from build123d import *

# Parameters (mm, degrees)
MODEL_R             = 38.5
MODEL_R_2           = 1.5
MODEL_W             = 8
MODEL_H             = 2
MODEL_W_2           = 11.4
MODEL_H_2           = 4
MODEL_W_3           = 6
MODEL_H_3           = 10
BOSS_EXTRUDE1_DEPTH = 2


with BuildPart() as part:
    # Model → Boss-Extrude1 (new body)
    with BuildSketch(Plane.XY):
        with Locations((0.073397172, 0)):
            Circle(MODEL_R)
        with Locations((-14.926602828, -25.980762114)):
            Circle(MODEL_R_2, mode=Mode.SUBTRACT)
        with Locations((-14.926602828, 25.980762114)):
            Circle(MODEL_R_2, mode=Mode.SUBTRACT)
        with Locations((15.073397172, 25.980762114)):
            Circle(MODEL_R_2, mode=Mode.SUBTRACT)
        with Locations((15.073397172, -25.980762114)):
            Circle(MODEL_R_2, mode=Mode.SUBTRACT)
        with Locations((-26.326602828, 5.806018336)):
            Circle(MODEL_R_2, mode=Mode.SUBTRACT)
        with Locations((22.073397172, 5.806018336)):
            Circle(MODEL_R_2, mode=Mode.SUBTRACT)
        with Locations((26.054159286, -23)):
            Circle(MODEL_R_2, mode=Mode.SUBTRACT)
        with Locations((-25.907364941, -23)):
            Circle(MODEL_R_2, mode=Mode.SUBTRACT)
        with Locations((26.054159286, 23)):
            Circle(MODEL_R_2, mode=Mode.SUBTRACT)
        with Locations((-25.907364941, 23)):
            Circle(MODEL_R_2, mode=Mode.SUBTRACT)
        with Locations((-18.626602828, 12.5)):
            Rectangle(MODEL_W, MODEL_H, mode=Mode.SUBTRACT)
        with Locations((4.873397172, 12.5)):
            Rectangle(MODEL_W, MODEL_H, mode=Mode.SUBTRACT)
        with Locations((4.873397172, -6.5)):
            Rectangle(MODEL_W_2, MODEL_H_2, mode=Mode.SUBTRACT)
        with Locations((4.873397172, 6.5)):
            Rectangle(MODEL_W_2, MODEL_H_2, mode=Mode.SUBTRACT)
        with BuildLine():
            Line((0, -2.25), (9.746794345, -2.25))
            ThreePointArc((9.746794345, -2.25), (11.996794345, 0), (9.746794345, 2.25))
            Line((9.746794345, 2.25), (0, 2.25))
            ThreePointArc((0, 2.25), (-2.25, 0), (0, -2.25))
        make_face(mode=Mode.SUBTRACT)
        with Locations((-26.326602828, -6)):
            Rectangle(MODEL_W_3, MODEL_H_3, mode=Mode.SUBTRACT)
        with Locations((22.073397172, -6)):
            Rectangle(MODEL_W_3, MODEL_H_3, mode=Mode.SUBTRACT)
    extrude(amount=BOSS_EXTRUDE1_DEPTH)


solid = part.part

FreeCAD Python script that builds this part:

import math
import FreeCAD as App
import Part
import Sketcher

doc = App.newDocument("Part")
params = doc.addObject("Spreadsheet::Sheet", "Params")
for row, (alias, value) in enumerate([
    ("sketch1_diameter", "77 mm"),
    ("sketch1_diameter2", "3 mm"),
    ("sketch1_width", "6 mm"),
    ("sketch1_width2", "8 mm"),
    ("sketch1_height", "10 mm"),
    ("pad1_length", "2 mm"),
], start=1):
    params.set(f"A{row}", alias)
    params.set(f"B{row}", "=" + value)
    params.setAlias(f"B{row}", alias)

body = doc.addObject("PartDesign::Body", "Body")

# Sketch on XY plane
sketch1 = body.newObject("Sketcher::SketchObject", "Sketch")
sketch1.AttachmentSupport = (doc.getObject("XY_Plane"), [""])
sketch1.MapMode = "FlatFace"
sketch1.addGeometry([
    Part.Circle(App.Vector(0.1, 0, 0), App.Vector(0, 0, 1), 38.5),  # 0
    Part.Circle(App.Vector(-25.9, -23, 0), App.Vector(0, 0, 1), 1.5),  # 1
    Part.Circle(App.Vector(-14.9, -26, 0), App.Vector(0, 0, 1), 1.5),  # 2
    Part.LineSegment(App.Vector(-23.3, -11, 0), App.Vector(-29.3, -11, 0)),  # 3
    Part.LineSegment(App.Vector(-29.3, -11, 0), App.Vector(-29.3, -1, 0)),  # 4
    Part.LineSegment(App.Vector(-29.3, -1, 0), App.Vector(-23.3, -1, 0)),  # 5
    Part.LineSegment(App.Vector(-23.3, -1, 0), App.Vector(-23.3, -11, 0)),  # 6
    Part.Circle(App.Vector(15.1, -26, 0), App.Vector(0, 0, 1), 1.5),  # 7
    Part.Circle(App.Vector(26.1, -23, 0), App.Vector(0, 0, 1), 1.5),  # 8
    Part.LineSegment(App.Vector(10.6, -8.5, 0), App.Vector(-0.8, -8.5, 0)),  # 9
    Part.LineSegment(App.Vector(-0.8, -8.5, 0), App.Vector(-0.8, -4.5, 0)),  # 10
    Part.LineSegment(App.Vector(-0.8, -4.5, 0), App.Vector(10.6, -4.5, 0)),  # 11
    Part.LineSegment(App.Vector(10.6, -4.5, 0), App.Vector(10.6, -8.5, 0)),  # 12
    Part.LineSegment(App.Vector(25.1, -11, 0), App.Vector(19.1, -11, 0)),  # 13
    Part.LineSegment(App.Vector(19.1, -11, 0), App.Vector(19.1, -1, 0)),  # 14
    Part.LineSegment(App.Vector(19.1, -1, 0), App.Vector(25.1, -1, 0)),  # 15
    Part.LineSegment(App.Vector(25.1, -1, 0), App.Vector(25.1, -11, 0)),  # 16
    Part.Circle(App.Vector(-26.3, 5.8, 0), App.Vector(0, 0, 1), 1.5),  # 17
    Part.LineSegment(App.Vector(-14.6, 11.5, 0), App.Vector(-22.6, 11.5, 0)),  # 18
    Part.LineSegment(App.Vector(-22.6, 11.5, 0), App.Vector(-22.6, 13.5, 0)),  # 19
    Part.LineSegment(App.Vector(-22.6, 13.5, 0), App.Vector(-14.6, 13.5, 0)),  # 20
    Part.LineSegment(App.Vector(-14.6, 13.5, 0), App.Vector(-14.6, 11.5, 0)),  # 21
    Part.Circle(App.Vector(-25.9, 23, 0), App.Vector(0, 0, 1), 1.5),  # 22
    Part.Circle(App.Vector(-14.9, 26, 0), App.Vector(0, 0, 1), 1.5),  # 23
    Part.LineSegment(App.Vector(9.7, -2.2, 0), App.Vector(0, -2.2, 0)),  # 24
    Part.ArcOfCircle(Part.Circle(App.Vector(0, 0, 0), App.Vector(0, 0, 1), 2.2), math.radians(90), math.radians(270)),  # 25
    Part.LineSegment(App.Vector(0, 2.2, 0), App.Vector(9.7, 2.2, 0)),  # 26
    Part.ArcOfCircle(Part.Circle(App.Vector(9.7, 0, 0), App.Vector(0, 0, 1), 2.2), math.radians(-90), math.radians(90)),  # 27
    Part.LineSegment(App.Vector(10.6, 4.5, 0), App.Vector(-0.8, 4.5, 0)),  # 28
    Part.LineSegment(App.Vector(-0.8, 4.5, 0), App.Vector(-0.8, 8.5, 0)),  # 29
    Part.LineSegment(App.Vector(-0.8, 8.5, 0), App.Vector(10.6, 8.5, 0)),  # 30
    Part.LineSegment(App.Vector(10.6, 8.5, 0), App.Vector(10.6, 4.5, 0)),  # 31
    Part.LineSegment(App.Vector(8.9, 11.5, 0), App.Vector(0.9, 11.5, 0)),  # 32
    Part.LineSegment(App.Vector(0.9, 11.5, 0), App.Vector(0.9, 13.5, 0)),  # 33
    Part.LineSegment(App.Vector(0.9, 13.5, 0), App.Vector(8.9, 13.5, 0)),  # 34
    Part.LineSegment(App.Vector(8.9, 13.5, 0), App.Vector(8.9, 11.5, 0)),  # 35
    Part.Circle(App.Vector(22.1, 5.8, 0), App.Vector(0, 0, 1), 1.5),  # 36
    Part.Circle(App.Vector(15.1, 26, 0), App.Vector(0, 0, 1), 1.5),  # 37
    Part.Circle(App.Vector(26.1, 23, 0), App.Vector(0, 0, 1), 1.5),  # 38
], False)
sketch1.addConstraint([
    Sketcher.Constraint("Coincident", 3, 2, 4, 1),
    Sketcher.Constraint("Coincident", 4, 2, 5, 1),
    Sketcher.Constraint("Coincident", 5, 2, 6, 1),
    Sketcher.Constraint("Coincident", 6, 2, 3, 1),
    Sketcher.Constraint("Coincident", 9, 2, 10, 1),
    Sketcher.Constraint("Coincident", 10, 2, 11, 1),
    Sketcher.Constraint("Coincident", 11, 2, 12, 1),
    Sketcher.Constraint("Coincident", 12, 2, 9, 1),
    Sketcher.Constraint("Coincident", 13, 2, 14, 1),
    Sketcher.Constraint("Coincident", 14, 2, 15, 1),
    Sketcher.Constraint("Coincident", 15, 2, 16, 1),
    Sketcher.Constraint("Coincident", 16, 2, 13, 1),
    Sketcher.Constraint("Coincident", 18, 2, 19, 1),
    Sketcher.Constraint("Coincident", 19, 2, 20, 1),
    Sketcher.Constraint("Coincident", 20, 2, 21, 1),
    Sketcher.Constraint("Coincident", 21, 2, 18, 1),
    Sketcher.Constraint("Tangent", 24, 2, 25, 2),
    Sketcher.Constraint("Tangent", 25, 1, 26, 1),
    Sketcher.Constraint("Tangent", 26, 2, 27, 2),
    Sketcher.Constraint("Tangent", 27, 1, 24, 1),
    Sketcher.Constraint("Coincident", 28, 2, 29, 1),
    Sketcher.Constraint("Coincident", 29, 2, 30, 1),
    Sketcher.Constraint("Coincident", 30, 2, 31, 1),
    Sketcher.Constraint("Coincident", 31, 2, 28, 1),
    Sketcher.Constraint("Coincident", 32, 2, 33, 1),
    Sketcher.Constraint("Coincident", 33, 2, 34, 1),
    Sketcher.Constraint("Coincident", 34, 2, 35, 1),
    Sketcher.Constraint("Coincident", 35, 2, 32, 1),
    Sketcher.Constraint("Horizontal", 3),
    Sketcher.Constraint("Vertical", 4),
    Sketcher.Constraint("Horizontal", 5),
    Sketcher.Constraint("Vertical", 6),
    Sketcher.Constraint("Horizontal", 9),
    Sketcher.Constraint("Vertical", 10),
    Sketcher.Constraint("Horizontal", 11),
    Sketcher.Constraint("Vertical", 12),
    Sketcher.Constraint("Horizontal", 13),
    Sketcher.Constraint("Vertical", 14),
    Sketcher.Constraint("Horizontal", 15),
    Sketcher.Constraint("Vertical", 16),
    Sketcher.Constraint("Horizontal", 18),
    Sketcher.Constraint("Vertical", 19),
    Sketcher.Constraint("Horizontal", 20),
    Sketcher.Constraint("Vertical", 21),
    Sketcher.Constraint("Horizontal", 24),
    Sketcher.Constraint("Horizontal", 26),
    Sketcher.Constraint("Horizontal", 28),
    Sketcher.Constraint("Vertical", 29),
    Sketcher.Constraint("Horizontal", 30),
    Sketcher.Constraint("Vertical", 31),
    Sketcher.Constraint("Horizontal", 32),
    Sketcher.Constraint("Vertical", 33),
    Sketcher.Constraint("Horizontal", 34),
    Sketcher.Constraint("Vertical", 35),
    Sketcher.Constraint("Coincident", 25, 3, -1, 1),
    Sketcher.Constraint("Equal", 1, 2),
    Sketcher.Constraint("Equal", 2, 7),
    Sketcher.Constraint("Equal", 7, 8),
    Sketcher.Constraint("Equal", 8, 17),
    Sketcher.Constraint("Equal", 17, 22),
    Sketcher.Constraint("Equal", 22, 23),
    Sketcher.Constraint("Equal", 23, 36),
    Sketcher.Constraint("Equal", 36, 37),
    Sketcher.Constraint("Equal", 37, 38),
    Sketcher.Constraint("Symmetric", 1, 3, 22, 3, -1),
    Sketcher.Constraint("Symmetric", 2, 3, 23, 3, -1),
    Sketcher.Constraint("Symmetric", 7, 3, 37, 3, -1),
    Sketcher.Constraint("Symmetric", 8, 3, 38, 3, -1),
    Sketcher.Constraint("Symmetric", 10, 2, 28, 2, -1),
    Sketcher.Constraint("Symmetric", 12, 2, 30, 2, -1),
    Sketcher.Constraint("PointOnObject", 0, 3, -1),
    Sketcher.Constraint("Horizontal", 2, 3, 7, 3),
    Sketcher.Constraint("Horizontal", 1, 3, 8, 3),
    Sketcher.Constraint("Horizontal", 17, 3, 36, 3),
    Sketcher.Constraint("Horizontal", 6, 2, 13, 2),
    Sketcher.Constraint("Horizontal", 5, 2, 14, 2),
    Sketcher.Constraint("Horizontal", 21, 2, 32, 2),
    Sketcher.Constraint("Horizontal", 20, 2, 33, 2),
    Sketcher.Constraint("Equal", 5, 13),
    Sketcher.Constraint("Equal", 20, 32),
    Sketcher.Constraint("Diameter", 0, 77.0),
    Sketcher.Constraint("Diameter", 1, 3.0),
    Sketcher.Constraint("DistanceX", 3, 2, 3, 1, 6.0),
    Sketcher.Constraint("DistanceX", 18, 2, 18, 1, 8.0),
    Sketcher.Constraint("DistanceY", 4, 1, 4, 2, 10.0),
    Sketcher.Constraint("DistanceY", 10, 1, 10, 2, 4.0),
    Sketcher.Constraint("DistanceY", 19, 1, 19, 2, 2.0),
    Sketcher.Constraint("Radius", 25, 2.25),
    Sketcher.Constraint("DistanceX", 9, 2, 9, 1, 11.4),
    Sketcher.Constraint("DistanceY", 1, 3, -1, 1, 23.0),
    Sketcher.Constraint("DistanceY", 3, 2, -1, 1, 11.0),
    Sketcher.Constraint("DistanceX", 2, 3, 0, 3, 15.0),
    Sketcher.Constraint("DistanceX", 2, 3, 7, 3, 30.0),
    Sketcher.Constraint("DistanceX", 0, 3, 36, 3, 22.0),
    Sketcher.Constraint("DistanceX", 3, 2, 17, 3, 3.0),
    Sketcher.Constraint("DistanceX", 7, 3, 13, 2, 4.0),
    Sketcher.Constraint("DistanceY", 10, 2, 28, 2, 9.0),
    Sketcher.Constraint("DistanceY", 29, 2, 32, 2, 3.0),
    Sketcher.Constraint("DistanceX", 17, 3, 0, 3, 26.4),
    Sketcher.Constraint("DistanceX", 9, 2, 0, 3, 0.9),
    Sketcher.Constraint("DistanceX", 17, 3, 18, 2, 3.7),
    Sketcher.Constraint("DistanceX", 29, 2, 32, 2, 1.7),
    Sketcher.Constraint("DistanceX", 24, 2, 24, 1, 9.746794),
    Sketcher.Constraint("DistanceX", -1, 1, 8, 3, 26.054159),
    Sketcher.Constraint("DistanceY", -1, 1, 17, 3, 5.806018),
    Sketcher.Constraint("DistanceY", 2, 3, 17, 3, 31.78678),
    Sketcher.Constraint("DistanceX", -1, 1, 0, 3, 0.073397),
    Sketcher.Constraint("DistanceX", 1, 3, -1, 1, 25.907365),
])
sketch1.setExpression("Constraints[80]", "Params.sketch1_diameter")
sketch1.setExpression("Constraints[81]", "Params.sketch1_diameter2")
sketch1.setExpression("Constraints[82]", "Params.sketch1_width")
sketch1.setExpression("Constraints[83]", "Params.sketch1_width2")
sketch1.setExpression("Constraints[84]", "Params.sketch1_height")
pad1 = body.newObject("PartDesign::Pad", "Pad")
pad1.Profile = sketch1
pad1.setExpression("Length", "Params.pad1_length")

doc.recompute()
